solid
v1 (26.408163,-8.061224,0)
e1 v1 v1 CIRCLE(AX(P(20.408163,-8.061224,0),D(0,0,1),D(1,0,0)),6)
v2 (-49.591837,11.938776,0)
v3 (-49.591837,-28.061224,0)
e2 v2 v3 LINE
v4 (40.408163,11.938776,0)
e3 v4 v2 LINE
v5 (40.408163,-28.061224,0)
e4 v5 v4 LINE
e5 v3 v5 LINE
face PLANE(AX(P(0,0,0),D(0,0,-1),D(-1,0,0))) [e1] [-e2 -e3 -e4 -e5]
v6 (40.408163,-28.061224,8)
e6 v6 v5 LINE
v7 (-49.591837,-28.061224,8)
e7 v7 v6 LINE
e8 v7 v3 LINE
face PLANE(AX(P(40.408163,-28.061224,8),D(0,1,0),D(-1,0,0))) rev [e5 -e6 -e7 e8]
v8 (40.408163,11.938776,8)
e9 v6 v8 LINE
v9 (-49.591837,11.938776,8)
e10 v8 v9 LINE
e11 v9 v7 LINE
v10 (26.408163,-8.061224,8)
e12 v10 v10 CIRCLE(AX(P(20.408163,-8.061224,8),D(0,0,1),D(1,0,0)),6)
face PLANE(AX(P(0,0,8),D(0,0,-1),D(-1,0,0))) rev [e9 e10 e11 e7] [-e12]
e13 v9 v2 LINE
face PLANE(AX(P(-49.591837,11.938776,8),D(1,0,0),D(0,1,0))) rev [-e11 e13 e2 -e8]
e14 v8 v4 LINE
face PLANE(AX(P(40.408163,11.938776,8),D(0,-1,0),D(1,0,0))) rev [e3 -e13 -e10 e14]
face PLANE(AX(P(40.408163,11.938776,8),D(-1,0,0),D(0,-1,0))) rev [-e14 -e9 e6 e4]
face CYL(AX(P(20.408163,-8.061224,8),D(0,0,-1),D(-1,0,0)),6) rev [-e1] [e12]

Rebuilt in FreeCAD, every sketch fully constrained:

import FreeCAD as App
import Part
import Sketcher
from FreeCAD import Vector


def add_polygon(sketch, points):
    """Adds a closed chain of lines whose ends are joined by coincident constraints."""
    first, n = sketch.GeometryCount, len(points)
    for a, b in zip(points, points[1:] + points[:1]):
        sketch.addGeometry(Part.LineSegment(App.Vector(*a, 0), App.Vector(*b, 0)), False)
    for i in range(n):
        sketch.addConstraint(Sketcher.Constraint("Coincident", first + i, 2, first + (i + 1) % n, 1))

doc = App.newDocument("Part")
body = doc.addObject("PartDesign::Body", "Body")

sketch1 = body.newObject("Sketcher::SketchObject", "Sketch")
sketch1.AttachmentSupport = (doc.getObject("XY_Plane"), [""])
sketch1.MapMode = "FlatFace"
add_polygon(sketch1, [(-50, 12), (-50, -28), (40, -28), (40, 12)])
sketch1.addGeometry(Part.Circle(Vector(20, -8, 0), Vector(0, 0, 1), 6), False)
sketch1.addConstraint([
    Sketcher.Constraint("Vertical", 0),
    Sketcher.Constraint("Horizontal", 1),
    Sketcher.Constraint("Vertical", 2),
    Sketcher.Constraint("Horizontal", 3),
    Sketcher.Constraint("Diameter", 4, 12.0),
    Sketcher.Constraint("DistanceX", 1, 1, 1, 2, 90.0),
    Sketcher.Constraint("DistanceY", 0, 2, 0, 1, 40.0),
    Sketcher.Constraint("DistanceX", 0, 2, 4, 3, 70.0),
    Sketcher.Constraint("DistanceY", 0, 2, 4, 3, 20.0),
    Sketcher.Constraint("DistanceX", -1, 1, 4, 3, 20.408163),
    Sketcher.Constraint("DistanceY", 4, 3, -1, 1, 8.061224),
])
pad1 = body.newObject("PartDesign::Pad", "Pad")
pad1.Profile = sketch1
pad1.Length = 8

doc.recompute()
